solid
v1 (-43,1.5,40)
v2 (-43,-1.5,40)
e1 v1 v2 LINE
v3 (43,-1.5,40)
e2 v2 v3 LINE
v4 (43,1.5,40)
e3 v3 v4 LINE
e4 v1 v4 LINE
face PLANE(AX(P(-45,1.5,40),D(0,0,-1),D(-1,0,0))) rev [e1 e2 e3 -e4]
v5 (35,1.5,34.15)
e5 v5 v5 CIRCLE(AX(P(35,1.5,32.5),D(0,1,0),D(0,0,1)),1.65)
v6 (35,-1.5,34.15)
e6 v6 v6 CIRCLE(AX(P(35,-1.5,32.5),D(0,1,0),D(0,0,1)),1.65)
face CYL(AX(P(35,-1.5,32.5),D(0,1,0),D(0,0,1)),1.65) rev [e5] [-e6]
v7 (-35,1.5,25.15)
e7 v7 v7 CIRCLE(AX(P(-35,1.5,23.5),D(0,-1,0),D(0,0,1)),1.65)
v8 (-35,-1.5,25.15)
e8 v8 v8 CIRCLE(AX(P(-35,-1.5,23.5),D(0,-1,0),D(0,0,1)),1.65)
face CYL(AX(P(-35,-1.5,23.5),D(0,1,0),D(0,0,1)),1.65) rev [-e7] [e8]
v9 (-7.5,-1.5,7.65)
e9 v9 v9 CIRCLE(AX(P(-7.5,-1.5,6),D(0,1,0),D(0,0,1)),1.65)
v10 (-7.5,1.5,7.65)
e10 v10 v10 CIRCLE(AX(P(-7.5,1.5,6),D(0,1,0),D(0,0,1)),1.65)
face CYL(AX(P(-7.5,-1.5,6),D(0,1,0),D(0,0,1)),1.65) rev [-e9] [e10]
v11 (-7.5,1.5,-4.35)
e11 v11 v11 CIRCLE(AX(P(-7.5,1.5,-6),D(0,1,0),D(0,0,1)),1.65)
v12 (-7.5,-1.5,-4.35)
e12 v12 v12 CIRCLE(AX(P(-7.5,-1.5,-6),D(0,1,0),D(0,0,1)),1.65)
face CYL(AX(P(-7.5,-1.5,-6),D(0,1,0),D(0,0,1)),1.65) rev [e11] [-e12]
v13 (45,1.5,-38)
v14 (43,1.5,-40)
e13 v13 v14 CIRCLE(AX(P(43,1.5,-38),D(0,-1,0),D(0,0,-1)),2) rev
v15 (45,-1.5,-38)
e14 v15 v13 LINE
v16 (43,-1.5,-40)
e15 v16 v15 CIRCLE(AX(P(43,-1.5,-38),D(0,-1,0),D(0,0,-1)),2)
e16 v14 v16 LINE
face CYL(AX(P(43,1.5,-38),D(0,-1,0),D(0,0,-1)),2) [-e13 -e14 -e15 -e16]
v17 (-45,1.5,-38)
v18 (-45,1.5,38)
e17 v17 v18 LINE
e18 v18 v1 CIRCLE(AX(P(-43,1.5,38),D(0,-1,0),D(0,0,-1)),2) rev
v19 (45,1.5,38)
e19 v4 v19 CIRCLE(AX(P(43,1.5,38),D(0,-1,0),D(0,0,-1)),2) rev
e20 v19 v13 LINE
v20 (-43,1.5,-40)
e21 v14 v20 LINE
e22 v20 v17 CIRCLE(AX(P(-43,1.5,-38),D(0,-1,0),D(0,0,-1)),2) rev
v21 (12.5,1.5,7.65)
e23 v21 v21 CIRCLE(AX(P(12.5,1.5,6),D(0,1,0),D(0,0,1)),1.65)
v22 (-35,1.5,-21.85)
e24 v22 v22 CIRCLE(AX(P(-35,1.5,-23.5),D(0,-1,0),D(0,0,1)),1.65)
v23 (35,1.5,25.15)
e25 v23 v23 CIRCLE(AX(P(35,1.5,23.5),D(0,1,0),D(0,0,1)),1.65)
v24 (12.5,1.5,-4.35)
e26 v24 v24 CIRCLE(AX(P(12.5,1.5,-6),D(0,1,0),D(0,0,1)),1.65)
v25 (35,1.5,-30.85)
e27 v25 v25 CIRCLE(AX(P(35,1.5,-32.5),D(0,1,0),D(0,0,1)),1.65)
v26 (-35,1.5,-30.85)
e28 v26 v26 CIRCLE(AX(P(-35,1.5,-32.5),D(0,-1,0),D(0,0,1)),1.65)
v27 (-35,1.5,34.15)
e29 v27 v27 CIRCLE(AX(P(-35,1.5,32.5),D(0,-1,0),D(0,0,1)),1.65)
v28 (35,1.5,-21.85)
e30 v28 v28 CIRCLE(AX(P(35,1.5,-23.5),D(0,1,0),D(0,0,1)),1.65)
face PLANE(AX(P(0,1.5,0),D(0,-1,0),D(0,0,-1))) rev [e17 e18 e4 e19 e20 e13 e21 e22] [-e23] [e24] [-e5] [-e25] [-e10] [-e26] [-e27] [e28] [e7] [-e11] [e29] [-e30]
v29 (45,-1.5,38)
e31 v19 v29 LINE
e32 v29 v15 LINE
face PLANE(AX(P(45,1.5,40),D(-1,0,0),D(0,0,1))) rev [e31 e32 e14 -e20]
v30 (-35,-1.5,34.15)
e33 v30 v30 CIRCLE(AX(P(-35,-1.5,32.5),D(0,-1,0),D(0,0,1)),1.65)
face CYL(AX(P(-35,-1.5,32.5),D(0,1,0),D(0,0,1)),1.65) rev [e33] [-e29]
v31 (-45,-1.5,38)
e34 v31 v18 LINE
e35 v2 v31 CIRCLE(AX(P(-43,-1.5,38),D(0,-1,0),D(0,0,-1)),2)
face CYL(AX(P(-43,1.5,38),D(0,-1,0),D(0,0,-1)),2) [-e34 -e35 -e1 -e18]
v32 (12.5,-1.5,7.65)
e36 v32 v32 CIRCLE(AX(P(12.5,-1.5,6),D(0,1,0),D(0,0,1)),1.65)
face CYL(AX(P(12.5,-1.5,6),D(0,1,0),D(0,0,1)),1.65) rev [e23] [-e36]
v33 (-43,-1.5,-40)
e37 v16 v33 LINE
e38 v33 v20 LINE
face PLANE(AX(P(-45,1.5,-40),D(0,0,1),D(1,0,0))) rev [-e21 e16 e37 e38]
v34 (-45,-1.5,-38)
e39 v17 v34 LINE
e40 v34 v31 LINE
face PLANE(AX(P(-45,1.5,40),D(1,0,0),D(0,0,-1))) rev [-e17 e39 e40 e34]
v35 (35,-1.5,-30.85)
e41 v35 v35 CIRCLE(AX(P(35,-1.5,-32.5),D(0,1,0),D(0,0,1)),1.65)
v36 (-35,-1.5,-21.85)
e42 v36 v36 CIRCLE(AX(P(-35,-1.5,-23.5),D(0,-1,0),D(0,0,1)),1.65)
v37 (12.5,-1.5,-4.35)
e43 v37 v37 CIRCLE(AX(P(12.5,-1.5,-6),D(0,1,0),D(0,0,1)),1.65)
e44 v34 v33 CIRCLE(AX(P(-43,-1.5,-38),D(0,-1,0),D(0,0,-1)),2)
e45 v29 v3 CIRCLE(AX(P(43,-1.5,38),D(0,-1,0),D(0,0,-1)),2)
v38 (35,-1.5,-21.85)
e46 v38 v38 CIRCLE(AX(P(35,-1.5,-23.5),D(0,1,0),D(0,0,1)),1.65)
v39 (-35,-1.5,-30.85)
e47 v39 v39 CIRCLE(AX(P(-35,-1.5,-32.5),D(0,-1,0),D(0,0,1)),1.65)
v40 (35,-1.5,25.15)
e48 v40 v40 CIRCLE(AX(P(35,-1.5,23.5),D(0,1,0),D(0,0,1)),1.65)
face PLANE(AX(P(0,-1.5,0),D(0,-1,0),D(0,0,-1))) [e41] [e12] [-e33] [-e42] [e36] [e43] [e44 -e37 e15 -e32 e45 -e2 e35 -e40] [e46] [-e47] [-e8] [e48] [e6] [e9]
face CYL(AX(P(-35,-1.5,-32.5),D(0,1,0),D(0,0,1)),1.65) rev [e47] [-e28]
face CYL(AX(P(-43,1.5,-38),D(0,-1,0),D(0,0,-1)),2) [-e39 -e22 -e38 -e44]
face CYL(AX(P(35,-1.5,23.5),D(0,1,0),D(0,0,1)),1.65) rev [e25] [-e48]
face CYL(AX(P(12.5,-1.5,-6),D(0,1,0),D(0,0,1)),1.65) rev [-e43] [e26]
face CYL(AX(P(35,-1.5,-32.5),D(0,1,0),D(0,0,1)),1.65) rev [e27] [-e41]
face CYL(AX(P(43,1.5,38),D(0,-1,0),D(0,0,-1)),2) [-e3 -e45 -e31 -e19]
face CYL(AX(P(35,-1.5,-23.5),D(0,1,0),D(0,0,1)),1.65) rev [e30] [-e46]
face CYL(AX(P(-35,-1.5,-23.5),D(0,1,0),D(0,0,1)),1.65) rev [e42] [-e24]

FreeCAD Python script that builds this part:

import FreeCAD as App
import Part
import Sketcher


def edges_at(feature, points):
    """Names of the edges that pass closest to the given points."""
    edges = feature.Shape.Edges
    near = lambda p: min(range(len(edges)), key=lambda i: edges[i].distToShape(Part.Vertex(*p))[0])
    return sorted({f"Edge{near(p) + 1}" for p in points})


def add_polygon(sketch, points):
    """Adds a closed chain of lines whose ends are joined by coincident constraints."""
    first, n = sketch.GeometryCount, len(points)
    for a, b in zip(points, points[1:] + points[:1]):
        sketch.addGeometry(Part.LineSegment(App.Vector(*a, 0), App.Vector(*b, 0)), False)
    for i in range(n):
        sketch.addConstraint(Sketcher.Constraint("Coincident", first + i, 2, first + (i + 1) % n, 1))

doc = App.newDocument("Part")
body = doc.addObject("PartDesign::Body", "Body")

sketch1 = doc.addObject("Sketcher::SketchObject", "Sketch")
body.addObject(sketch1)
sketch1.AttachmentSupport = (doc.XZ_Plane, [""])
sketch1.MapMode = "FlatFace"
add_polygon(sketch1, [(-45, -40), (-45, 40), (45, 40), (45, -40)])
sketch1.addConstraint(Sketcher.Constraint("Vertical", 0))
sketch1.addConstraint(Sketcher.Constraint("Horizontal", 1))
sketch1.addConstraint(Sketcher.Constraint("Vertical", 2))
sketch1.addConstraint(Sketcher.Constraint("Horizontal", 3))
sketch1.addConstraint(Sketcher.Constraint("Symmetric", 0, 2, 2, 2, -1, 1))
sketch1.addConstraint(Sketcher.Constraint("DistanceX", 1, 1, 1, 2, 90.0))
sketch1.addConstraint(Sketcher.Constraint("DistanceY", 0, 1, 0, 2, 80.0))
pad1 = doc.addObject("PartDesign::Pad", "Pad")
body.addObject(pad1)
pad1.Profile = sketch1
pad1.Length = 3
pad1.Midplane = True

sketch2 = doc.addObject("Sketcher::SketchObject", "Sketch001")
body.addObject(sketch2)
sketch2.AttachmentSupport = (doc.XZ_Plane, [""])
sketch2.MapMode = "FlatFace"
sketch2.AttachmentOffset = App.Placement(App.Vector(0, 0, -1.5), App.Rotation())
sketch2.addGeometry(Part.Circle(App.Vector(12.5, -6, 0), App.Vector(0, 0, 1), 1.65), False)
sketch2.addGeometry(Part.Circle(App.Vector(-7.5, -6, 0), App.Vector(0, 0, 1), 1.65), False)
sketch2.addGeometry(Part.Circle(App.Vector(-7.5, 6, 0), App.Vector(0, 0, 1), 1.65), False)
sketch2.addGeometry(Part.Circle(App.Vector(12.5, 6, 0), App.Vector(0, 0, 1), 1.65), False)
sketch2.addConstraint(Sketcher.Constraint("Equal", 0, 1))
sketch2.addConstraint(Sketcher.Constraint("Equal", 1, 2))
sketch2.addConstraint(Sketcher.Constraint("Equal", 2, 3))
sketch2.addConstraint(Sketcher.Constraint("Symmetric", 1, 3, 2, 3, -1))
sketch2.addConstraint(Sketcher.Constraint("Symmetric", 0, 3, 3, 3, -1))
sketch2.addConstraint(Sketcher.Constraint("Horizontal", 0, 3, 1, 3))
sketch2.addConstraint(Sketcher.Constraint("Diameter", 0, 3.3))
sketch2.addConstraint(Sketcher.Constraint("DistanceY", 0, 3, -1, 1, 6.0))
sketch2.addConstraint(Sketcher.Constraint("DistanceX", 1, 3, 0, 3, 20.0))
sketch2.addConstraint(Sketcher.Constraint("DistanceX", -1, 1, 0, 3, 12.5))
pocket1 = doc.addObject("PartDesign::Pocket", "Pocket")
body.addObject(pocket1)
pocket1.Profile = sketch2
pocket1.Length = 3
pocket1.Reversed = True
doc.recompute()

fillet = doc.addObject("PartDesign::Fillet", "Fillet")
body.addObject(fillet)
fillet.Base = (pocket1, edges_at(pocket1, [
    (45, 0, 40),
    (-45, 0, 40),
    (-45, 0, -40),
    (45, 0, -40),
]))
fillet.Radius = 2

sketch3 = doc.addObject("Sketcher::SketchObject", "Sketch002")
body.addObject(sketch3)
sketch3.AttachmentSupport = (doc.XZ_Plane, [""])
sketch3.MapMode = "FlatFace"
sketch3.AttachmentOffset = App.Placement(App.Vector(0, 0, -1.5), App.Rotation())
sketch3.addGeometry(Part.Circle(App.Vector(35, -32.5, 0), App.Vector(0, 0, 1), 1.65), False)
sketch3.addGeometry(Part.Circle(App.Vector(35, -23.5, 0), App.Vector(0, 0, 1), 1.65), False)
sketch3.addGeometry(Part.Circle(App.Vector(35, 23.5, 0), App.Vector(0, 0, 1), 1.65), False)
sketch3.addGeometry(Part.Circle(App.Vector(35, 32.5, 0), App.Vector(0, 0, 1), 1.65), False)
sketch3.addConstraint(Sketcher.Constraint("Equal", 0, 1))
sketch3.addConstraint(Sketcher.Constraint("Equal", 1, 2))
sketch3.addConstraint(Sketcher.Constraint("Equal", 2, 3))
sketch3.addConstraint(Sketcher.Constraint("Symmetric", 1, 3, 2, 3, -1))
sketch3.addConstraint(Sketcher.Constraint("Symmetric", 0, 3, 3, 3, -1))
sketch3.addConstraint(Sketcher.Constraint("Vertical", 0, 3, 1, 3))
sketch3.addConstraint(Sketcher.Constraint("Diameter", 0, 3.3))
sketch3.addConstraint(Sketcher.Constraint("DistanceX", -1, 1, 0, 3, 35.0))
sketch3.addConstraint(Sketcher.Constraint("DistanceY", 0, 3, 1, 3, 9.0))
sketch3.addConstraint(Sketcher.Constraint("DistanceY", 1, 3, 2, 3, 47.0))
pocket2 = doc.addObject("PartDesign::Pocket", "Pocket001")
body.addObject(pocket2)
pocket2.Profile = sketch3
pocket2.Length = 3
pocket2.Reversed = True
doc.recompute()

mirrored = doc.addObject("PartDesign::Mirrored", "Mirrored")
body.addObject(mirrored)
mirrored.Originals = [pocket2]
mirrored.MirrorPlane = (doc.YZ_Plane, [""])
body.Tip = mirrored
doc.recompute()

mirrored2 = doc.addObject("PartDesign::Mirrored", "Mirrored001")
body.addObject(mirrored2)
mirrored2.Originals = [pocket2]
mirrored2.MirrorPlane = (doc.XY_Plane, [""])
body.Tip = mirrored2

doc.recompute()
